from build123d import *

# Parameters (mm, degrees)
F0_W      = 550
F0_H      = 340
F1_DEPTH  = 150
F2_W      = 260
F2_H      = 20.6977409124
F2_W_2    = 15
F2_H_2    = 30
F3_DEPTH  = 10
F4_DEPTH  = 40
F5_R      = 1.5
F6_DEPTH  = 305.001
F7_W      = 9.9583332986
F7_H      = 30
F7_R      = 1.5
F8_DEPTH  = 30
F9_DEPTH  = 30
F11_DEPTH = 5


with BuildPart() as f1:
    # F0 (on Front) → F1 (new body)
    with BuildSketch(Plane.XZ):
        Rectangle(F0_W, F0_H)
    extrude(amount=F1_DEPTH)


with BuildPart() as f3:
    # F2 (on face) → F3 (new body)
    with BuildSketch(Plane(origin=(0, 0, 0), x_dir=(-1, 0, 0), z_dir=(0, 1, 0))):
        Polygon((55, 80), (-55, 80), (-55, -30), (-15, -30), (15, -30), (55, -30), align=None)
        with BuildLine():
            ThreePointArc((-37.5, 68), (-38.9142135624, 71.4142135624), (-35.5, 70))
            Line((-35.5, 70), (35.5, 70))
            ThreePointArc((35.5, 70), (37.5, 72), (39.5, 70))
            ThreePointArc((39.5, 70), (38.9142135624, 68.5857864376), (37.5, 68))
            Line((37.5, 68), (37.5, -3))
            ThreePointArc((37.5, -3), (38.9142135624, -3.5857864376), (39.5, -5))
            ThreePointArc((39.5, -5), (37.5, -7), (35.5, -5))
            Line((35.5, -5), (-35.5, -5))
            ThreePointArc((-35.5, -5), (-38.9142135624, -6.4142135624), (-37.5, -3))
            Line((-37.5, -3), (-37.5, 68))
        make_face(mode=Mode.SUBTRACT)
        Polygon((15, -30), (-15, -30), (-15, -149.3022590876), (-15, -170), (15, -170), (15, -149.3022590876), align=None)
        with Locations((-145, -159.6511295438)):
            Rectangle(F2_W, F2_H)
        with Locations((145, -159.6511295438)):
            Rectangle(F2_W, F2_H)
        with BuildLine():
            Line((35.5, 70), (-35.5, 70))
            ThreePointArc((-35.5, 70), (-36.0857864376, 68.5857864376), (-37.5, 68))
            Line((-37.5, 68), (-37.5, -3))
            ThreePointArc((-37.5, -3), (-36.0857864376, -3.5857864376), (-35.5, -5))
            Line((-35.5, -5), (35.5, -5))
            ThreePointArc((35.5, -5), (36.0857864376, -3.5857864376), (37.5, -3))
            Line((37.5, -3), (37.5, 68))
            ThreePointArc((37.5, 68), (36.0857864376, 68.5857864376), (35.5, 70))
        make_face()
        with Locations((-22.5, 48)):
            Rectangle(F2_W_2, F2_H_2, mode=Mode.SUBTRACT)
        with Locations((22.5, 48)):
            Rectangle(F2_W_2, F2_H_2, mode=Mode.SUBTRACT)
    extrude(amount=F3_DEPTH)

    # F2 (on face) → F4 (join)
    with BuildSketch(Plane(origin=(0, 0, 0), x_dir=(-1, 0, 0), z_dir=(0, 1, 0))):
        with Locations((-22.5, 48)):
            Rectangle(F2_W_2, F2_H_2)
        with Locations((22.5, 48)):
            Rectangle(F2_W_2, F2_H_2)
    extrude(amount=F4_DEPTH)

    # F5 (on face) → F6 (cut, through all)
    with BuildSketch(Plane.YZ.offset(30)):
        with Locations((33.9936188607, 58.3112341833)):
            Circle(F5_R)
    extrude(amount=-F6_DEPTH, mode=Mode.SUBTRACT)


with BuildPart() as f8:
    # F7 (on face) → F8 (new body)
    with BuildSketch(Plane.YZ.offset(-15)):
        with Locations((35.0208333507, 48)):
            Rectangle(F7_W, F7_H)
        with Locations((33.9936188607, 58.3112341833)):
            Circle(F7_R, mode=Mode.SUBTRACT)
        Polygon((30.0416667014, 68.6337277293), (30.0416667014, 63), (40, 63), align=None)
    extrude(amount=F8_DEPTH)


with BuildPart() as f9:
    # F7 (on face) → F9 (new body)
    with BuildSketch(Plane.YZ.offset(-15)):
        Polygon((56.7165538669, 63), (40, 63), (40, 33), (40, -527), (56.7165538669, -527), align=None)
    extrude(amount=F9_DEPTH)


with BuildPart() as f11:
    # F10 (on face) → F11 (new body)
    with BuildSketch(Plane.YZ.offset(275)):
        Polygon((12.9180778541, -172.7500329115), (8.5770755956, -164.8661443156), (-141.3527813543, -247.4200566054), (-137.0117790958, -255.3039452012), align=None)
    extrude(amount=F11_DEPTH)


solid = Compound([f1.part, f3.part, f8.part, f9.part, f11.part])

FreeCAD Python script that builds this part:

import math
import FreeCAD as App
import Part
import Sketcher
Q = App.Units.Quantity

doc = App.newDocument("Part")
body = doc.addObject("PartDesign::Body", "Body")

# Sketch on XZ plane
sketch1 = body.newObject("Sketcher::SketchObject", "Sketch")
sketch1.AttachmentSupport = (doc.getObject("XZ_Plane"), [""])
sketch1.MapMode = "FlatFace"
sketch1.addGeometry([
    Part.LineSegment(App.Vector(-275, 170, 0), App.Vector(-275, -170, 0)),
    Part.LineSegment(App.Vector(-275, -170, 0), App.Vector(275, -170, 0)),
    Part.LineSegment(App.Vector(275, -170, 0), App.Vector(275, 170, 0)),
    Part.LineSegment(App.Vector(275, 170, 0), App.Vector(-275, 170, 0)),
], False)
sketch1.addConstraint([
    Sketcher.Constraint("Coincident", 0, 2, 1, 1),
    Sketcher.Constraint("Coincident", 1, 2, 2, 1),
    Sketcher.Constraint("Coincident", 2, 2, 3, 1),
    Sketcher.Constraint("Coincident", 3, 2, 0, 1),
    Sketcher.Constraint("Vertical", 0),
    Sketcher.Constraint("Horizontal", 1),
    Sketcher.Constraint("Vertical", 2),
    Sketcher.Constraint("Horizontal", 3),
    Sketcher.Constraint("Symmetric", 0, 2, 2, 2, -1, 1),
    Sketcher.Constraint("DistanceX", 1, 1, 1, 2, Q("550 mm")),
    Sketcher.Constraint("DistanceY", 0, 2, 0, 1, Q("340 mm")),
])
pad1 = body.newObject("PartDesign::Pad", "Pad")
pad1.Profile = sketch1
pad1.Length = 150
body2 = doc.addObject("PartDesign::Body", "Body001")

# Sketch on XZ plane
sketch2 = body2.newObject("Sketcher::SketchObject", "Sketch001")
sketch2.AttachmentSupport = (doc.getObject("XZ_Plane001"), [""])
sketch2.MapMode = "FlatFace"
sketch2.addGeometry([
    Part.LineSegment(App.Vector(-55, 80, 0), App.Vector(55, 80, 0)),  # 0
    Part.LineSegment(App.Vector(55, 80, 0), App.Vector(55, -30, 0)),  # 1
    Part.LineSegment(App.Vector(55, -30, 0), App.Vector(15, -30, 0)),  # 2
    Part.LineSegment(App.Vector(15, -30, 0), App.Vector(15, -149.302259, 0)),  # 3
    Part.LineSegment(App.Vector(15, -149.302259, 0), App.Vector(275, -149.302259, 0)),  # 4
    Part.LineSegment(App.Vector(275, -149.302259, 0), App.Vector(275, -170, 0)),  # 5
    Part.LineSegment(App.Vector(275, -170, 0), App.Vector(-275, -170, 0)),  # 6
    Part.LineSegment(App.Vector(-275, -170, 0), App.Vector(-275, -149.302259, 0)),  # 7
    Part.LineSegment(App.Vector(-275, -149.302259, 0), App.Vector(-15, -149.302259, 0)),  # 8
    Part.LineSegment(App.Vector(-15, -149.302259, 0), App.Vector(-15, -30, 0)),  # 9
    Part.LineSegment(App.Vector(-15, -30, 0), App.Vector(-55, -30, 0)),  # 10
    Part.LineSegment(App.Vector(-55, -30, 0), App.Vector(-55, 80, 0)),  # 11
    Part.ArcOfCircle(Part.Circle(App.Vector(37.5, -5, 0), App.Vector(0, 0, 1), 2), math.radians(180), math.radians(450)),  # 12
    Part.ArcOfCircle(Part.Circle(App.Vector(37.5, -5, 0), App.Vector(0, 0, 1), 2), math.radians(90), math.radians(180)),  # 13
    Part.ArcOfCircle(Part.Circle(App.Vector(-37.5, -5, 0), App.Vector(0, 0, 1), 2), math.radians(90), math.radians(180)),  # 14
    Part.ArcOfCircle(Part.Circle(App.Vector(-37.5, -5, 0), App.Vector(0, 0, 1), 2), math.radians(180), math.radians(360)),  # 15
    Part.ArcOfCircle(Part.Circle(App.Vector(-37.5, -5, 0), App.Vector(0, 0, 1), 2), math.radians(0), math.radians(90)),  # 16
    Part.LineSegment(App.Vector(15, 33, 0), App.Vector(30, 33, 0)),  # 17
    Part.LineSegment(App.Vector(30, 33, 0), App.Vector(30, 63, 0)),  # 18
    Part.LineSegment(App.Vector(30, 63, 0), App.Vector(15, 63, 0)),  # 19
    Part.LineSegment(App.Vector(15, 63, 0), App.Vector(15, 33, 0)),  # 20
    Part.ArcOfCircle(Part.Circle(App.Vector(37.5, 70, 0), App.Vector(0, 0, 1), 2), math.radians(-90), math.radians(180)),  # 21
    Part.ArcOfCircle(Part.Circle(App.Vector(37.5, 70, 0), App.Vector(0, 0, 1), 2), math.radians(180), math.radians(270)),  # 22
    Part.LineSegment(App.Vector(-30, 33, 0), App.Vector(-15, 33, 0)),  # 23
    Part.LineSegment(App.Vector(-15, 33, 0), App.Vector(-15, 63, 0)),  # 24
    Part.LineSegment(App.Vector(-15, 63, 0), App.Vector(-30, 63, 0)),  # 25
    Part.LineSegment(App.Vector(-30, 63, 0), App.Vector(-30, 33, 0)),  # 26
    Part.ArcOfCircle(Part.Circle(App.Vector(-37.5, 70, 0), App.Vector(0, 0, 1), 2), math.radians(0), math.radians(180)),  # 27
    Part.ArcOfCircle(Part.Circle(App.Vector(-37.5, 70, 0), App.Vector(0, 0, 1), 2), math.radians(180), math.radians(270)),  # 28
    Part.ArcOfCircle(Part.Circle(App.Vector(-37.5, 70, 0), App.Vector(0, 0, 1), 2), math.radians(-90), math.radians(0)),  # 29
], False)
sketch2.addConstraint([
    Sketcher.Constraint("Coincident", 0, 2, 1, 1),
    Sketcher.Constraint("Coincident", 1, 2, 2, 1),
    Sketcher.Constraint("Coincident", 2, 2, 3, 1),
    Sketcher.Constraint("Coincident", 3, 2, 4, 1),
    Sketcher.Constraint("Coincident", 4, 2, 5, 1),
    Sketcher.Constraint("Coincident", 5, 2, 6, 1),
    Sketcher.Constraint("Coincident", 6, 2, 7, 1),
    Sketcher.Constraint("Coincident", 7, 2, 8, 1),
    Sketcher.Constraint("Coincident", 8, 2, 9, 1),
    Sketcher.Constraint("Coincident", 9, 2, 10, 1),
    Sketcher.Constraint("Coincident", 10, 2, 11, 1),
    Sketcher.Constraint("Coincident", 11, 2, 0, 1),
    Sketcher.Constraint("Tangent", 12, 1, 13, 2),
    Sketcher.Constraint("Coincident", 13, 1, 12, 2),
    Sketcher.Constraint("Tangent", 14, 2, 15, 1),
    Sketcher.Constraint("Tangent", 15, 2, 16, 1),
    Sketcher.Constraint("Tangent", 16, 2, 14, 1),
    Sketcher.Constraint("Coincident", 17, 2, 18, 1),
    Sketcher.Constraint("Coincident", 18, 2, 19, 1),
    Sketcher.Constraint("Coincident", 19, 2, 20, 1),
    Sketcher.Constraint("Coincident", 20, 2, 17, 1),
    Sketcher.Constraint("Tangent", 21, 1, 22, 2),
    Sketcher.Constraint("Coincident", 22, 1, 21, 2),
    Sketcher.Constraint("Coincident", 23, 2, 24, 1),
    Sketcher.Constraint("Coincident", 24, 2, 25, 1),
    Sketcher.Constraint("Coincident", 25, 2, 26, 1),
    Sketcher.Constraint("Coincident", 26, 2, 23, 1),
    Sketcher.Constraint("Tangent", 27, 2, 28, 1),
    Sketcher.Constraint("Tangent", 28, 2, 29, 1),
    Sketcher.Constraint("Tangent", 29, 2, 27, 1),
    Sketcher.Constraint("Horizontal", 0),
    Sketcher.Constraint("Vertical", 1),
    Sketcher.Constraint("Horizontal", 2),
    Sketcher.Constraint("Vertical", 3),
    Sketcher.Constraint("Horizontal", 4),
    Sketcher.Constraint("Vertical", 5),
    Sketcher.Constraint("Horizontal", 6),
    Sketcher.Constraint("Vertical", 7),
    Sketcher.Constraint("Horizontal", 8),
    Sketcher.Constraint("Vertical", 9),
    Sketcher.Constraint("Horizontal", 10),
    Sketcher.Constraint("Vertical", 11),
    Sketcher.Constraint("Horizontal", 17),
    Sketcher.Constraint("Vertical", 18),
    Sketcher.Constraint("Horizontal", 19),
    Sketcher.Constraint("Vertical", 20),
    Sketcher.Constraint("Horizontal", 23),
    Sketcher.Constraint("Vertical", 24),
    Sketcher.Constraint("Horizontal", 25),
    Sketcher.Constraint("Vertical", 26),
    Sketcher.Constraint("Equal", 13, 14),
    Sketcher.Constraint("Equal", 16, 21),
    Sketcher.Constraint("Equal", 22, 27),
    Sketcher.Constraint("Symmetric", 12, 3, 14, 3, -2),
    Sketcher.Constraint("Symmetric", 21, 3, 27, 3, -2),
    Sketcher.Constraint("Symmetric", 4, 2, 7, 2, -2),
    Sketcher.Constraint("Symmetric", 2, 2, 9, 2, -2),
    Sketcher.Constraint("Symmetric", 20, 2, 23, 2, -2),
    Sketcher.Constraint("Symmetric", 18, 2, 25, 2, -2),
    Sketcher.Constraint("Horizontal", 16, 3, 12, 1),
    Sketcher.Constraint("Horizontal", 12, 1, 14, 2),
    Sketcher.Constraint("Horizontal", 14, 2, 15, 2),
    Sketcher.Constraint("Horizontal", 29, 3, 22, 1),
    Sketcher.Constraint("Horizontal", 22, 1, 27, 2),
    Sketcher.Constraint("Horizontal", 27, 2, 29, 2),
    Sketcher.Constraint("Vertical", 13, 3, 21, 3),
    Sketcher.Constraint("Vertical", 22, 3, 13, 1),
    Sketcher.Constraint("Vertical", 29, 3, 16, 2),
    Sketcher.Constraint("Vertical", 3, 2, 19, 2),
    Sketcher.Constraint("Vertical", 13, 1, 21, 1),
    Sketcher.Constraint("Vertical", 16, 2, 28, 2),
    Sketcher.Constraint("Equal", 2, 10),
    Sketcher.Constraint("Equal", 0, 1),
    Sketcher.Constraint("Radius", 12, Q("2 mm")),
    Sketcher.Constraint("DistanceX", 0, 1, 0, 2, Q("110 mm")),
    Sketcher.Constraint("DistanceX", 2, 2, 2, 1, Q("40 mm")),
    Sketcher.Constraint("DistanceX", 4, 1, 4, 2, Q("260 mm")),
    Sketcher.Constraint("DistanceX", 17, 1, 17, 2, Q("15 mm")),
    Sketcher.Constraint("DistanceY", 18, 1, 18, 2, Q("30 mm")),
    Sketcher.Constraint("DistanceY", 12, 3, -1, 1, Q("5 mm")),
    Sketcher.Constraint("DistanceY", -1, 1, 21, 3, Q("70 mm")),
    Sketcher.Constraint("DistanceY", -1, 1, 0, 2, Q("80 mm")),
    Sketcher.Constraint("DistanceY", 5, 2, -1, 1, Q("170 mm")),
    Sketcher.Constraint("DistanceY", -1, 1, 17, 2, Q("33 mm")),
    Sketcher.Constraint("DistanceX", 14, 3, 12, 3, Q("75 mm")),
    Sketcher.Constraint("DistanceY", 3, 2, 3, 1, Q("119.302259 mm")),
])
pad2 = body2.newObject("PartDesign::Pad", "Pad001")
pad2.Profile = sketch2
pad2.Length = 10
pad2.Reversed = True

# Sketch on XZ plane
sketch3 = body2.newObject("Sketcher::SketchObject", "Sketch002")
sketch3.AttachmentSupport = (doc.getObject("XZ_Plane001"), [""])
sketch3.MapMode = "FlatFace"
sketch3.addGeometry([
    Part.LineSegment(App.Vector(30, 63, 0), App.Vector(30, 33, 0)),  # 0
    Part.LineSegment(App.Vector(30, 33, 0), App.Vector(15, 33, 0)),  # 1
    Part.LineSegment(App.Vector(15, 33, 0), App.Vector(15, 63, 0)),  # 2
    Part.LineSegment(App.Vector(15, 63, 0), App.Vector(30, 63, 0)),  # 3
    Part.LineSegment(App.Vector(-15, 63, 0), App.Vector(-15, 33, 0)),  # 4
    Part.LineSegment(App.Vector(-15, 33, 0), App.Vector(-30, 33, 0)),  # 5
    Part.LineSegment(App.Vector(-30, 33, 0), App.Vector(-30, 63, 0)),  # 6
    Part.LineSegment(App.Vector(-30, 63, 0), App.Vector(-15, 63, 0)),  # 7
], False)
sketch3.addConstraint([
    Sketcher.Constraint("Coincident", 0, 2, 1, 1),
    Sketcher.Constraint("Coincident", 1, 2, 2, 1),
    Sketcher.Constraint("Coincident", 2, 2, 3, 1),
    Sketcher.Constraint("Coincident", 3, 2, 0, 1),
    Sketcher.Constraint("Coincident", 4, 2, 5, 1),
    Sketcher.Constraint("Coincident", 5, 2, 6, 1),
    Sketcher.Constraint("Coincident", 6, 2, 7, 1),
    Sketcher.Constraint("Coincident", 7, 2, 4, 1),
    Sketcher.Constraint("Vertical", 0),
    Sketcher.Constraint("Horizontal", 1),
    Sketcher.Constraint("Vertical", 2),
    Sketcher.Constraint("Horizontal", 3),
    Sketcher.Constraint("Vertical", 4),
    Sketcher.Constraint("Horizontal", 5),
    Sketcher.Constraint("Vertical", 6),
    Sketcher.Constraint("Horizontal", 7),
    Sketcher.Constraint("Symmetric", 1, 2, 4, 2, -2),
    Sketcher.Constraint("Symmetric", 3, 2, 6, 2, -2),
    Sketcher.Constraint("DistanceX", 1, 2, 1, 1, Q("15 mm")),
    Sketcher.Constraint("DistanceY", 0, 2, 0, 1, Q("30 mm")),
    Sketcher.Constraint("DistanceX", -1, 1, 0, 2, Q("30 mm")),
    Sketcher.Constraint("DistanceY", -1, 1, 0, 2, Q("33 mm")),
])
pad3 = body2.newObject("PartDesign::Pad", "Pad002")
pad3.Profile = sketch3
pad3.Length = 40
pad3.Reversed = True

# Sketch on YZ plane
sketch4 = body2.newObject("Sketcher::SketchObject", "Sketch003")
sketch4.AttachmentSupport = (doc.getObject("YZ_Plane001"), [""])
sketch4.MapMode = "FlatFace"
sketch4.AttachmentOffset = App.Placement(App.Vector(0, 0, 30), App.Rotation())
sketch4.addGeometry(Part.Circle(App.Vector(33.993619, 58.311234, 0), App.Vector(0, 0, 1), 1.5), False)
sketch4.addConstraint([
    Sketcher.Constraint("Diameter", 0, Q("3 mm")),
    Sketcher.Constraint("DistanceX", -1, 1, 0, 3, Q("33.993619 mm")),
    Sketcher.Constraint("DistanceY", -1, 1, 0, 3, Q("58.311234 mm")),
])
pocket1 = body2.newObject("PartDesign::Pocket", "Pocket")
pocket1.Profile = sketch4
pocket1.Type = "ThroughAll"
body3 = doc.addObject("PartDesign::Body", "Body002")

# Sketch on YZ plane
sketch5 = body3.newObject("Sketcher::SketchObject", "Sketch004")
sketch5.AttachmentSupport = (doc.getObject("YZ_Plane002"), [""])
sketch5.MapMode = "FlatFace"
sketch5.AttachmentOffset = App.Placement(App.Vector(0, 0, -15), App.Rotation())
sketch5.addGeometry([
    Part.LineSegment(App.Vector(30.041667, 33, 0), App.Vector(40, 33, 0)),  # 0
    Part.LineSegment(App.Vector(40, 33, 0), App.Vector(40, 63, 0)),  # 1
    Part.LineSegment(App.Vector(40, 63, 0), App.Vector(30.041667, 68.633728, 0)),  # 2
    Part.LineSegment(App.Vector(30.041667, 68.633728, 0), App.Vector(30.041667, 33, 0)),  # 3
    Part.Circle(App.Vector(33.993619, 58.311234, 0), App.Vector(0, 0, 1), 1.5),  # 4
], False)
sketch5.addConstraint([
    Sketcher.Constraint("Coincident", 0, 2, 1, 1),
    Sketcher.Constraint("Coincident", 1, 2, 2, 1),
    Sketcher.Constraint("Coincident", 2, 2, 3, 1),
    Sketcher.Constraint("Coincident", 3, 2, 0, 1),
    Sketcher.Constraint("Horizontal", 0),
    Sketcher.Constraint("Vertical", 1),
    Sketcher.Constraint("Vertical", 3),
    Sketcher.Constraint("Diameter", 4, Q("3 mm")),
    Sketcher.Constraint("DistanceY", 1, 1, 1, 2, Q("30 mm")),
    Sketcher.Constraint("DistanceX", -1, 1, 0, 2, Q("40 mm")),
    Sketcher.Constraint("DistanceY", -1, 1, 0, 2, Q("33 mm")),
    Sketcher.Constraint("DistanceX", 0, 1, 0, 2, Q("9.958333 mm")),
    Sketcher.Constraint("DistanceY", 3, 2, 3, 1, Q("35.633728 mm")),
    Sketcher.Constraint("DistanceX", -1, 1, 4, 3, Q("33.993619 mm")),
    Sketcher.Constraint("DistanceY", -1, 1, 4, 3, Q("58.311234 mm")),
])
pad4 = body3.newObject("PartDesign::Pad", "Pad003")
pad4.Profile = sketch5
pad4.Length = 30
body4 = doc.addObject("PartDesign::Body", "Body003")

# Sketch on YZ plane
sketch6 = body4.newObject("Sketcher::SketchObject", "Sketch005")
sketch6.AttachmentSupport = (doc.getObject("YZ_Plane003"), [""])
sketch6.MapMode = "FlatFace"
sketch6.AttachmentOffset = App.Placement(App.Vector(0, 0, -15), App.Rotation())
sketch6.addGeometry([
    Part.LineSegment(App.Vector(56.716554, 63, 0), App.Vector(40, 63, 0)),
    Part.LineSegment(App.Vector(40, 63, 0), App.Vector(40, -527, 0)),
    Part.LineSegment(App.Vector(40, -527, 0), App.Vector(56.716554, -527, 0)),
    Part.LineSegment(App.Vector(56.716554, -527, 0), App.Vector(56.716554, 63, 0)),
], False)
sketch6.addConstraint([
    Sketcher.Constraint("Coincident", 0, 2, 1, 1),
    Sketcher.Constraint("Coincident", 1, 2, 2, 1),
    Sketcher.Constraint("Coincident", 2, 2, 3, 1),
    Sketcher.Constraint("Coincident", 3, 2, 0, 1),
    Sketcher.Constraint("Horizontal", 0),
    Sketcher.Constraint("Vertical", 1),
    Sketcher.Constraint("Horizontal", 2),
    Sketcher.Constraint("Vertical", 3),
    Sketcher.Constraint("DistanceY", 1, 2, 1, 1, Q("590 mm")),
    Sketcher.Constraint("DistanceX", -1, 1, 0, 2, Q("40 mm")),
    Sketcher.Constraint("DistanceY", -1, 1, 0, 2, Q("63 mm")),
    Sketcher.Constraint("DistanceX", 0, 2, 0, 1, Q("16.716554 mm")),
])
pad5 = body4.newObject("PartDesign::Pad", "Pad004")
pad5.Profile = sketch6
pad5.Length = 30
body5 = doc.addObject("PartDesign::Body", "Body004")

# Sketch on YZ plane
sketch7 = body5.newObject("Sketcher::SketchObject", "Sketch006")
sketch7.AttachmentSupport = (doc.getObject("YZ_Plane004"), [""])
sketch7.MapMode = "FlatFace"
sketch7.AttachmentOffset = App.Placement(App.Vector(0, 0, 275), App.Rotation())
sketch7.addGeometry([
    Part.LineSegment(App.Vector(12.918078, -172.750033, 0), App.Vector(8.577076, -164.866144, 0)),
    Part.LineSegment(App.Vector(8.577076, -164.866144, 0), App.Vector(-141.352781, -247.420057, 0)),
    Part.LineSegment(App.Vector(-141.352781, -247.420057, 0), App.Vector(-137.011779, -255.303945, 0)),
    Part.LineSegment(App.Vector(-137.011779, -255.303945, 0), App.Vector(12.918078, -172.750033, 0)),
], False)
sketch7.addConstraint([
    Sketcher.Constraint("Coincident", 0, 2, 1, 1),
    Sketcher.Constraint("Coincident", 1, 2, 2, 1),
    Sketcher.Constraint("Coincident", 2, 2, 3, 1),
    Sketcher.Constraint("Coincident", 3, 2, 0, 1),
    Sketcher.Constraint("Perpendicular", 0, 1),
    Sketcher.Constraint("Perpendicular", 1, 2),
    Sketcher.Constraint("Perpendicular", 2, 3),
    Sketcher.Constraint("Distance", 0, Q("9 mm")),
    Sketcher.Constraint("DistanceY", 2, 2, 0, 2, Q("90.437801 mm")),
    Sketcher.Constraint("DistanceX", 1, 2, -1, 1, Q("141.352781 mm")),
    Sketcher.Constraint("DistanceX", 2, 2, -1, 1, Q("137.011779 mm")),
    Sketcher.Constraint("DistanceY", 0, 2, -1, 1, Q("164.866144 mm")),
])
pad6 = body5.newObject("PartDesign::Pad", "Pad005")
pad6.Profile = sketch7
pad6.Length = 5

doc.recompute()
